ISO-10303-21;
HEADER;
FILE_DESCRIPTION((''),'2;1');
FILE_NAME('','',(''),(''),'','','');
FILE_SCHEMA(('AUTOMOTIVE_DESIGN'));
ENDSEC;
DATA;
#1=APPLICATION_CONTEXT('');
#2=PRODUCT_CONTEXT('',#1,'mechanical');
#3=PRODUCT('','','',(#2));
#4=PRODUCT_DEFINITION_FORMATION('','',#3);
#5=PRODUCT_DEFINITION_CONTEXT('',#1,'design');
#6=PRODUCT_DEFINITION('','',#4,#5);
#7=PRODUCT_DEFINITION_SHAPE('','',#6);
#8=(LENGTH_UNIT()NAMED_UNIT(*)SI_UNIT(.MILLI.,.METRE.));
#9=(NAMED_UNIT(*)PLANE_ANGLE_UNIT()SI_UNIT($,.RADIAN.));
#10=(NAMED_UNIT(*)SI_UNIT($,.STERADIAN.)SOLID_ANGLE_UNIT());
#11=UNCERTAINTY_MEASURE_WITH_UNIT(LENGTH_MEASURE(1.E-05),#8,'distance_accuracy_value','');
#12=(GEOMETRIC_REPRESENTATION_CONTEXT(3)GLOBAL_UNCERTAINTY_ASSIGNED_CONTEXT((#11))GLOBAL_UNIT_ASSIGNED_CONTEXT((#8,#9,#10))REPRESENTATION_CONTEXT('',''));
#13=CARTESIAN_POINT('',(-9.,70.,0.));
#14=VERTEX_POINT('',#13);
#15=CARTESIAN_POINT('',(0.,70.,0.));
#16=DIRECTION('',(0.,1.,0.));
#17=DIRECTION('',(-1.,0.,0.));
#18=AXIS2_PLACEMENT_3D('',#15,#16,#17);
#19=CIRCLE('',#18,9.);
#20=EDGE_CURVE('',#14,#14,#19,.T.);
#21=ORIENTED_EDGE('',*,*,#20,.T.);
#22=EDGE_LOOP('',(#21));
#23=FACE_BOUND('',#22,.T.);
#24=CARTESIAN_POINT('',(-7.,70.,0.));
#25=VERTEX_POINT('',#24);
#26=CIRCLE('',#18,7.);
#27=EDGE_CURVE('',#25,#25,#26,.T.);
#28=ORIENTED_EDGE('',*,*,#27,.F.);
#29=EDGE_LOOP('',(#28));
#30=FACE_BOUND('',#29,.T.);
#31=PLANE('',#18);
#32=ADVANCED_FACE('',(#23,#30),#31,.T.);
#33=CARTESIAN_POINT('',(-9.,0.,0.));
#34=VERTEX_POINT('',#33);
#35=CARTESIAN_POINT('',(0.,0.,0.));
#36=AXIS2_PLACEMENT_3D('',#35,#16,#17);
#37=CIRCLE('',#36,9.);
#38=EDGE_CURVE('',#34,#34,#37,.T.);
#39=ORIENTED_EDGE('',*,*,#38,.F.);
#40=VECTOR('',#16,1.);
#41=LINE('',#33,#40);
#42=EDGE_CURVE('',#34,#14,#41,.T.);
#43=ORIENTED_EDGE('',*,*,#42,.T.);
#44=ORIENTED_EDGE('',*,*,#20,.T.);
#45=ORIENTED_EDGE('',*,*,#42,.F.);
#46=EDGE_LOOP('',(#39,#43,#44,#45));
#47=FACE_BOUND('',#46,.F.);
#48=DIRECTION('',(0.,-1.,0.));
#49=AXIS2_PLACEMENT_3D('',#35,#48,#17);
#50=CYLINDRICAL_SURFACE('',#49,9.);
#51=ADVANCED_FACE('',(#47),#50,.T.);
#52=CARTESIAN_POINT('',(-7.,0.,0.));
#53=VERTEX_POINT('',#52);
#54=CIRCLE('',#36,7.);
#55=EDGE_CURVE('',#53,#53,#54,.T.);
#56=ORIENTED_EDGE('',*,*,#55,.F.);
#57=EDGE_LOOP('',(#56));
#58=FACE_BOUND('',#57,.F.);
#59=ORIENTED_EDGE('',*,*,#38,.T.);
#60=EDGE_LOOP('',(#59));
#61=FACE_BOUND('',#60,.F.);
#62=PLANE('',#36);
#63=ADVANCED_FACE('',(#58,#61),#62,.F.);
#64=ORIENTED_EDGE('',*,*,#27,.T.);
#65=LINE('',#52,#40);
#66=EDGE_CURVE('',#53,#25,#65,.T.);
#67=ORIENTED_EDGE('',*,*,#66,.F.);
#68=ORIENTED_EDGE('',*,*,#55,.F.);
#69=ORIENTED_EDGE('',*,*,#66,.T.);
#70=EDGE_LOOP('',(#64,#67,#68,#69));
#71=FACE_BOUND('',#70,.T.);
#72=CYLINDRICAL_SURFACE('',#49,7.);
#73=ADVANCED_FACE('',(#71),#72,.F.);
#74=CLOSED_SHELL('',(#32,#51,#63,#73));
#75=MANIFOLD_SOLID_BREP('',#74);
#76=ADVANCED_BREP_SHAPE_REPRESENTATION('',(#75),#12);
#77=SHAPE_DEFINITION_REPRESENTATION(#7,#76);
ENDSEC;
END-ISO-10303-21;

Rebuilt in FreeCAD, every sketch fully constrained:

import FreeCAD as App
import Part
import Sketcher

V = App.Vector
Q = App.Units.Quantity

doc = App.newDocument("Part")
body = doc.addObject("PartDesign::Body", "Body")

sketch1 = body.newObject("Sketcher::SketchObject", "Sketch")
sketch1.AttachmentSupport = (doc.getObject("XZ_Plane"), [""])
sketch1.MapMode = "FlatFace"
sketch1.addGeometry(Part.Circle(V(0, 0, 0), V(0, 0, 1), 9), False)
sketch1.addGeometry(Part.Circle(V(0, 0, 0), V(0, 0, 1), 7), False)
sketch1.addConstraint(Sketcher.Constraint("Coincident", 0, 3, -1, 1))
sketch1.addConstraint(Sketcher.Constraint("Coincident", 1, 3, -1, 1))
sketch1.addConstraint(Sketcher.Constraint("Diameter", 0, Q("18 mm")))
sketch1.addConstraint(Sketcher.Constraint("Diameter", 1, Q("14 mm")))
pad1 = body.newObject("PartDesign::Pad", "Pad")
pad1.Profile = sketch1
pad1.Length = 70
pad1.Reversed = True

doc.recompute()
